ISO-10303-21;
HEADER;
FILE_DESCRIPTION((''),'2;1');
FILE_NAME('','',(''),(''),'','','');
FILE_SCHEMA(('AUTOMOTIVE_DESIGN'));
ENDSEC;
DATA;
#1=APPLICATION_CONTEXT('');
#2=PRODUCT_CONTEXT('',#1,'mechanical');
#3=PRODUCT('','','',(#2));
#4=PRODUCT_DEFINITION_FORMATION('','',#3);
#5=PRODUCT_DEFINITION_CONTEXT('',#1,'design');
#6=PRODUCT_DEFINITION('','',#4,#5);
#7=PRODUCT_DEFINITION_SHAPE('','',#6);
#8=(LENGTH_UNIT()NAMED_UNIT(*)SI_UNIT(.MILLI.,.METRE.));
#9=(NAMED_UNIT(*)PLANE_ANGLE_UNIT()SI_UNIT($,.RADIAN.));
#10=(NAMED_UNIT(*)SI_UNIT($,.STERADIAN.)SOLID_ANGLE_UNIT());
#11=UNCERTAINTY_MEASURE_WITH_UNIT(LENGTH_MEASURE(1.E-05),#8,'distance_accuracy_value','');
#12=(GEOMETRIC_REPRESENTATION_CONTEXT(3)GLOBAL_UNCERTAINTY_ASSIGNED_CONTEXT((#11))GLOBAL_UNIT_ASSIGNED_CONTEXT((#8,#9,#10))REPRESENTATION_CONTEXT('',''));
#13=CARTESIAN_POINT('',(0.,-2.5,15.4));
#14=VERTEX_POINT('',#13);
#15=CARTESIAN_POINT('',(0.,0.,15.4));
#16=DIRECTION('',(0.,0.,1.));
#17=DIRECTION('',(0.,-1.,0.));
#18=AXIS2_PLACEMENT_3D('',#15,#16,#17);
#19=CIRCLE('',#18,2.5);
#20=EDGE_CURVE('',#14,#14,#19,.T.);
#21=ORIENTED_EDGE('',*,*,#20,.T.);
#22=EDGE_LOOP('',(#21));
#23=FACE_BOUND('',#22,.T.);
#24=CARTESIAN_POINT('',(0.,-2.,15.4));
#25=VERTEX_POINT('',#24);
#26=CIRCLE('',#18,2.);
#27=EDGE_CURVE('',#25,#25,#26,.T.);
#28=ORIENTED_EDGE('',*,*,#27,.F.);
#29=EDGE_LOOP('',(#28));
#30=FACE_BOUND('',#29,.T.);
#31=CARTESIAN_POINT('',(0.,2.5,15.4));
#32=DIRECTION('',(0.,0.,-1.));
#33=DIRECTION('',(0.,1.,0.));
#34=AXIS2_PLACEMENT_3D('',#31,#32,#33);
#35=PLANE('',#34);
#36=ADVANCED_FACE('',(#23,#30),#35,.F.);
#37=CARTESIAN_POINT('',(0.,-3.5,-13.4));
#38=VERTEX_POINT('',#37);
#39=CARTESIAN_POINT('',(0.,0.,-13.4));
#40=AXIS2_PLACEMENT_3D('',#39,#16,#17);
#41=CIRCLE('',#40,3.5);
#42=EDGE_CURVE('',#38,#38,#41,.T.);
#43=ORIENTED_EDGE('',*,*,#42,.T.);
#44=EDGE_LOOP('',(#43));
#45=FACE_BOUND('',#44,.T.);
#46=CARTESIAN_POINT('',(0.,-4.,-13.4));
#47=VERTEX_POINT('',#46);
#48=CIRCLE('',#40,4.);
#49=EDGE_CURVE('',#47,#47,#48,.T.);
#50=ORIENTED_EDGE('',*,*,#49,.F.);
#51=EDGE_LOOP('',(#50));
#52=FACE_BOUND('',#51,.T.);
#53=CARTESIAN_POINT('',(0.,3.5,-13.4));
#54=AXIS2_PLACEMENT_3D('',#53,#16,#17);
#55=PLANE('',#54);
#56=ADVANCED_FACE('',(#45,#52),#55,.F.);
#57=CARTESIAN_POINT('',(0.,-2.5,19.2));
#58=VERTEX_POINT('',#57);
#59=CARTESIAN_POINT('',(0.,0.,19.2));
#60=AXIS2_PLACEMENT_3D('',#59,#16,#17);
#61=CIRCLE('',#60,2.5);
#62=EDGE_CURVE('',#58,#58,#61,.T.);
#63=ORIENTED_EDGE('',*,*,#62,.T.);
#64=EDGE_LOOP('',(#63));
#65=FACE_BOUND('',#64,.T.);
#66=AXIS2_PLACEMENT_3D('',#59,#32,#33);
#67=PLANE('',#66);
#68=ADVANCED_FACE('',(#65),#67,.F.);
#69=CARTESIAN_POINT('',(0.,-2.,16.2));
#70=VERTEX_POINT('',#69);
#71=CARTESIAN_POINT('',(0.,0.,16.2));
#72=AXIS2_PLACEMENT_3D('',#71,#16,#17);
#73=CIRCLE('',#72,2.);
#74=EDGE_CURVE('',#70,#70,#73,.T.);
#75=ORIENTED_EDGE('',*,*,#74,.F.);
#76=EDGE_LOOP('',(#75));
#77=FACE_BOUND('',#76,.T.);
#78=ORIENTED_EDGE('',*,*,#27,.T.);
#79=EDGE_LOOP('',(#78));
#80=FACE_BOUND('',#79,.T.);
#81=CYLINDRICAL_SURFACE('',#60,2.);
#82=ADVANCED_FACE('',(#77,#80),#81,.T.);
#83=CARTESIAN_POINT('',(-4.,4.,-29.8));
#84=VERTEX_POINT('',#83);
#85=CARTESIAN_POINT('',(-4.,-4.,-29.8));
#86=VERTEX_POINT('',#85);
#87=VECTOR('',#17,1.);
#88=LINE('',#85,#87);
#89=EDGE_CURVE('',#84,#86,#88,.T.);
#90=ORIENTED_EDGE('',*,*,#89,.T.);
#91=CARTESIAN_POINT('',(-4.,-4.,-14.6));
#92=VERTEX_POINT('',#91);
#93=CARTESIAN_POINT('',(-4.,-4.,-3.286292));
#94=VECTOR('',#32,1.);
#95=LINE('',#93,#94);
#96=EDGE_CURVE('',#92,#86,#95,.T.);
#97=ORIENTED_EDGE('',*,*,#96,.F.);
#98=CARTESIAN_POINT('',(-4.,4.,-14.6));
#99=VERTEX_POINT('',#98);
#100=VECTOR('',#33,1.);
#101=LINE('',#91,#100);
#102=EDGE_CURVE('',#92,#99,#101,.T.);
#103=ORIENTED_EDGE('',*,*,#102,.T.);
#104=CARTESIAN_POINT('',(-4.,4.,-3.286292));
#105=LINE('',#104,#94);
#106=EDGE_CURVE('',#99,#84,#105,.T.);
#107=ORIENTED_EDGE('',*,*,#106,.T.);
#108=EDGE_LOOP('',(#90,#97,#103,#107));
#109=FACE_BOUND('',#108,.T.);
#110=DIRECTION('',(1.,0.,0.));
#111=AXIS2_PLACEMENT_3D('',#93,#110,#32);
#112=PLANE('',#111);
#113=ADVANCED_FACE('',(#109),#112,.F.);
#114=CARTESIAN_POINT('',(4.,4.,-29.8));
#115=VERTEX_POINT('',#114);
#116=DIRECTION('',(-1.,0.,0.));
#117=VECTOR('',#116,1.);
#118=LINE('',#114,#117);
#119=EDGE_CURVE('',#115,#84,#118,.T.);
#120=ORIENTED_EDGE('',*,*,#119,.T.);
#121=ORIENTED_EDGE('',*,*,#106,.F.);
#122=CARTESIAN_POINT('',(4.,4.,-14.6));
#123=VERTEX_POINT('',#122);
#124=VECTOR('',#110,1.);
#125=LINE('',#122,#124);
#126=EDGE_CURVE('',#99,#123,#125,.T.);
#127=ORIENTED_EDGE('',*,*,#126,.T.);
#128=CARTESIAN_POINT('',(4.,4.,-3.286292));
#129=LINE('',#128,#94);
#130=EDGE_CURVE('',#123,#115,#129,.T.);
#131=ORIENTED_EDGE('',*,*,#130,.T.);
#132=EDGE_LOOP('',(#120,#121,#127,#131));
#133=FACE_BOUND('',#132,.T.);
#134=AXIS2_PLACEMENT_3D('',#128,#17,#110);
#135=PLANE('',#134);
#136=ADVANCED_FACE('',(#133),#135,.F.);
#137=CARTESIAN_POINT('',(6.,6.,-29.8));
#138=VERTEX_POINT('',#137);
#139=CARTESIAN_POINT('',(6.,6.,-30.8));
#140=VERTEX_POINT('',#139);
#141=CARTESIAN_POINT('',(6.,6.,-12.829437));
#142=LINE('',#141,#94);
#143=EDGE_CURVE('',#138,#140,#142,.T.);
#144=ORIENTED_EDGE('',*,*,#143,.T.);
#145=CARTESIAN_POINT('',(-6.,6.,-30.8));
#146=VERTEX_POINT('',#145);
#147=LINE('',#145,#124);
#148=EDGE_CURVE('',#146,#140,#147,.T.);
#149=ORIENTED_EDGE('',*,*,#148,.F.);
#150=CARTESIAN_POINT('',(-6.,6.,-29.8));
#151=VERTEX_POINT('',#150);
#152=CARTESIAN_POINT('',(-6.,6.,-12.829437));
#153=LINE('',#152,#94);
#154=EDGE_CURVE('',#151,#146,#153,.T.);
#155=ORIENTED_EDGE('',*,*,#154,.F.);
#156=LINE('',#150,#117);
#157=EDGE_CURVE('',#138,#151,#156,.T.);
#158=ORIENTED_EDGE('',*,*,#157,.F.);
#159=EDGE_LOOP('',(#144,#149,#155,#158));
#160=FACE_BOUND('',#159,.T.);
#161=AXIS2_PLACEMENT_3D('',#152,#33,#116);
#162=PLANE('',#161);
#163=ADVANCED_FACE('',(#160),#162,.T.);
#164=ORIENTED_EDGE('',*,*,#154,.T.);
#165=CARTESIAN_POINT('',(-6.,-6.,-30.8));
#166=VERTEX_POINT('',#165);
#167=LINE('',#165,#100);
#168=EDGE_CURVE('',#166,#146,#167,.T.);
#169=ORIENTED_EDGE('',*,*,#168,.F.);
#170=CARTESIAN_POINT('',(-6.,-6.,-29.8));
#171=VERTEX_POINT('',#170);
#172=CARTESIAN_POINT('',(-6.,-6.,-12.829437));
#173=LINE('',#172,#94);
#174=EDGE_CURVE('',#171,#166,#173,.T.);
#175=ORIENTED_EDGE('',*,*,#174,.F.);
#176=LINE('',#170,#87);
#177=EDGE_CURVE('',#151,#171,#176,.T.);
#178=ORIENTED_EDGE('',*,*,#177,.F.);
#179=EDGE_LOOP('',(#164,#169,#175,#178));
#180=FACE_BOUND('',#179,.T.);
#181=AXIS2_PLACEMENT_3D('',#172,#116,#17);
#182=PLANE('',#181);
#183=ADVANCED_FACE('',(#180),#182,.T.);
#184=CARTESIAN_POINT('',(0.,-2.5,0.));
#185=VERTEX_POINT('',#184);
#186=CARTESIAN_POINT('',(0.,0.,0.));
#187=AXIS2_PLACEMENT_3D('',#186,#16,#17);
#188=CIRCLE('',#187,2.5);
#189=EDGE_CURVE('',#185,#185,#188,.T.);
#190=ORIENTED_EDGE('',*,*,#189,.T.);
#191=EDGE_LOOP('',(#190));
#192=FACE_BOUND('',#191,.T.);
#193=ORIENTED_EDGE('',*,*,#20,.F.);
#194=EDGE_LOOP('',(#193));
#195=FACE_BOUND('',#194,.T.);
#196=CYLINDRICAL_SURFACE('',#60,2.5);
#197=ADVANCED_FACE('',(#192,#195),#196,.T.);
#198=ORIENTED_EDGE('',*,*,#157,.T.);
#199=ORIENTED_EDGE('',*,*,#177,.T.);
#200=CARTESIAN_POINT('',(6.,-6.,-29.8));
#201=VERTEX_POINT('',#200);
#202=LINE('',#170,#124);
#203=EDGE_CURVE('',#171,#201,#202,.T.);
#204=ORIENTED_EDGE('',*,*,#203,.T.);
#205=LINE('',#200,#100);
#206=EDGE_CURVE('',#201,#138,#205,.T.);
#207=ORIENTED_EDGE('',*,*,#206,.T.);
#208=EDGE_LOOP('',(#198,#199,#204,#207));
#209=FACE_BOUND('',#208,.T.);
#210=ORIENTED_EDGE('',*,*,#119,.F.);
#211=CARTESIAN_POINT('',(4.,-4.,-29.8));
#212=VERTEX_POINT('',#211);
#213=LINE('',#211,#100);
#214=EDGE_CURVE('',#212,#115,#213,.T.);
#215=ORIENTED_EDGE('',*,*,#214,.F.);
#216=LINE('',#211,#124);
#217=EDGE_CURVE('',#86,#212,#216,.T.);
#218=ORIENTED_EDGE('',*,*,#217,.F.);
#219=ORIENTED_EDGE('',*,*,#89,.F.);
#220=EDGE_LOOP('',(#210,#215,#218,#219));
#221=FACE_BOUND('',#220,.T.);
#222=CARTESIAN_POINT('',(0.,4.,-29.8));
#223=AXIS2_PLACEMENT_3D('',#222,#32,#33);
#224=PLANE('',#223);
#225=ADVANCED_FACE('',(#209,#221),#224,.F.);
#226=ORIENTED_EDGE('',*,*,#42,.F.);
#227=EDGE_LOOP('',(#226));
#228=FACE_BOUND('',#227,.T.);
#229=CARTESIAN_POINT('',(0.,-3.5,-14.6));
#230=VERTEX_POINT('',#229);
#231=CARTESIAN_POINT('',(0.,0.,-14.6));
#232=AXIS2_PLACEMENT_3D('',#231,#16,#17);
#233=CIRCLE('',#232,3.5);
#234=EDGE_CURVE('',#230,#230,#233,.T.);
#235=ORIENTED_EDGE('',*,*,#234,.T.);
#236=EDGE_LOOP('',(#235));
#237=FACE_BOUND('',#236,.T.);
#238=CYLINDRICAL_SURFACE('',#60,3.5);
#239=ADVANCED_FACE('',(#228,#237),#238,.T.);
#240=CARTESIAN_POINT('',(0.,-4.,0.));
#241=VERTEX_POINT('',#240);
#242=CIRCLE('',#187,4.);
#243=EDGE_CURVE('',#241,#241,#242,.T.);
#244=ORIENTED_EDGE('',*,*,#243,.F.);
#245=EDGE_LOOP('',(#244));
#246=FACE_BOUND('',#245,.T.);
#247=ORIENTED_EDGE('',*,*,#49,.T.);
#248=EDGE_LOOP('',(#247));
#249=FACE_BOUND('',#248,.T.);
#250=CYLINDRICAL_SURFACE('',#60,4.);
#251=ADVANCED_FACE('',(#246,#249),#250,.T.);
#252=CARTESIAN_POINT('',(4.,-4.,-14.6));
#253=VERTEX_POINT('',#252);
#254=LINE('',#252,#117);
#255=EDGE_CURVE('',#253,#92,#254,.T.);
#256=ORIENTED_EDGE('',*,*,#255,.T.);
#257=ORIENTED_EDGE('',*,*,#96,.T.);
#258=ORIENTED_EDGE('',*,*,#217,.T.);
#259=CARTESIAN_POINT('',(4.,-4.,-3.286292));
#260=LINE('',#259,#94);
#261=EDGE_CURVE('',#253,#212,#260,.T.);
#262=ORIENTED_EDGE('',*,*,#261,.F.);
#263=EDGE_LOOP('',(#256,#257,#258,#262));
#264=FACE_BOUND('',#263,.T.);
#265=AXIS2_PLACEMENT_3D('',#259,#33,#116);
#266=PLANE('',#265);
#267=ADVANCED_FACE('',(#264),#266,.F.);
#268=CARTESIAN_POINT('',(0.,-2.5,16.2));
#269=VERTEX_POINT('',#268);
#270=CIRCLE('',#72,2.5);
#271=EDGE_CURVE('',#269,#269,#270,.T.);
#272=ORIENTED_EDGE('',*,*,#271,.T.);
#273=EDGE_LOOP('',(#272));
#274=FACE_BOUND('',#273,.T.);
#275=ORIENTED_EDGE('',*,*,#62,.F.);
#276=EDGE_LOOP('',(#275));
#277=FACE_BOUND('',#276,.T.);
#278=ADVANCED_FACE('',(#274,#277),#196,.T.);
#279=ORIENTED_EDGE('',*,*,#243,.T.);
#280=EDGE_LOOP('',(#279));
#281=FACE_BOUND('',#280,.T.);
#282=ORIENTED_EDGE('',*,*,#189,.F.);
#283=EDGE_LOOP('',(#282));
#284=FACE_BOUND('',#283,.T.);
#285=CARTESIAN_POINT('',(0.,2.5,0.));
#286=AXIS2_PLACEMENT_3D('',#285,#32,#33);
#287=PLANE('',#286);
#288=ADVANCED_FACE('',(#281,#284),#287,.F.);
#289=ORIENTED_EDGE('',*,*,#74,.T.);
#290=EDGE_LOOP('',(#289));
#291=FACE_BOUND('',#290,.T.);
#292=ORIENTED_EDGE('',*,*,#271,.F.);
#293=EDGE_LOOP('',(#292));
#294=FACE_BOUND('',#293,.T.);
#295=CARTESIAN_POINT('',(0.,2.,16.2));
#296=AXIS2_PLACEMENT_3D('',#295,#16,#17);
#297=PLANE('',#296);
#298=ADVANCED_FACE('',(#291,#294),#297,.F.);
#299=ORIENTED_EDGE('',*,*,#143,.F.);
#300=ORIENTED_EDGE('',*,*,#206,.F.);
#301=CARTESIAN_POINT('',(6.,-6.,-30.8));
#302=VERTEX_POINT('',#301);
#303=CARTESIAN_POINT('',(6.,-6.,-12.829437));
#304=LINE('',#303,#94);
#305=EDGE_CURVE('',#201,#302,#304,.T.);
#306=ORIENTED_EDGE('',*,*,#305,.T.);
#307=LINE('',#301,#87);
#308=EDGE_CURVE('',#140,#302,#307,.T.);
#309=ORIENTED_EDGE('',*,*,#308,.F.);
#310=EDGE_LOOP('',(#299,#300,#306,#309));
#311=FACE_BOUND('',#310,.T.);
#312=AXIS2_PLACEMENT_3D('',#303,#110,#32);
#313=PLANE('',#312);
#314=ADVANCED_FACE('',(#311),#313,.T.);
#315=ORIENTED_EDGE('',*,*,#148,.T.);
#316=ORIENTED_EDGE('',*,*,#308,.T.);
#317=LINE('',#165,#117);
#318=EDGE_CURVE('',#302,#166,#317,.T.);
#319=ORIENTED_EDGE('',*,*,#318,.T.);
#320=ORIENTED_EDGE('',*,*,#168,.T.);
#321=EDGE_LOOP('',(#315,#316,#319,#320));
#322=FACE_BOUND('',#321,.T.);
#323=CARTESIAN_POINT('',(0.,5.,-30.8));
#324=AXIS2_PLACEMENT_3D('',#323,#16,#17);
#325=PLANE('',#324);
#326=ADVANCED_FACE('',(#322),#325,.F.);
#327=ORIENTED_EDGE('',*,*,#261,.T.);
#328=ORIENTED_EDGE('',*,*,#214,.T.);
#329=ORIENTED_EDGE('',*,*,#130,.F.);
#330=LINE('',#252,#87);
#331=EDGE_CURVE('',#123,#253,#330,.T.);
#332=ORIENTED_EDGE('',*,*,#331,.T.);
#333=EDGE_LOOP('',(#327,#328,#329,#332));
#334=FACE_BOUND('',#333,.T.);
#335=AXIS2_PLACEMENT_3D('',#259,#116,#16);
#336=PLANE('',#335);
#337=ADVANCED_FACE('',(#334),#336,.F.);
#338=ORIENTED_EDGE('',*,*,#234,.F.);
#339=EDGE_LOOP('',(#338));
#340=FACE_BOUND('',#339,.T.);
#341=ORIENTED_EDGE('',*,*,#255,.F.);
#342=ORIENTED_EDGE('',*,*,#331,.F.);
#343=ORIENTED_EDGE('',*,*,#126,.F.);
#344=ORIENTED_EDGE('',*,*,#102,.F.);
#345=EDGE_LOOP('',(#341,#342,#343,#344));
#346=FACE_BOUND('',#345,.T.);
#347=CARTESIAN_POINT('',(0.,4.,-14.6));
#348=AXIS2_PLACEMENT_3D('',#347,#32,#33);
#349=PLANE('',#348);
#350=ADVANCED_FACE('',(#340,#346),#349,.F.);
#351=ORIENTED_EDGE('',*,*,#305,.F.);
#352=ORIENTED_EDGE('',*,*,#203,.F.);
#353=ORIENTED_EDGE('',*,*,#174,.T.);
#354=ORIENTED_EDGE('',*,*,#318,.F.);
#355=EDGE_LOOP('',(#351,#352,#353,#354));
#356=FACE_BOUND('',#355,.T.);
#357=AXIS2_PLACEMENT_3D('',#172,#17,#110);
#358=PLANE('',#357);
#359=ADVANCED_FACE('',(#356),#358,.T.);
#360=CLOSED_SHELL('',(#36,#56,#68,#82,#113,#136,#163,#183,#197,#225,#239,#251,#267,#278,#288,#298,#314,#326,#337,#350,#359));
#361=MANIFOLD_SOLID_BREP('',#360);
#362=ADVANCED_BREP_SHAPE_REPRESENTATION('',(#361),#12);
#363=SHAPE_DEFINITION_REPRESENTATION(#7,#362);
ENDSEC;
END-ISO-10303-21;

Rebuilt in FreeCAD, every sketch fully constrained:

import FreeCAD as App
import Part
import Sketcher
Q = App.Units.Quantity


def add_polygon(sketch, points):
    """Adds a closed chain of lines whose ends are joined by coincident constraints."""
    first, n = sketch.GeometryCount, len(points)
    for a, b in zip(points, points[1:] + points[:1]):
        sketch.addGeometry(Part.LineSegment(App.Vector(*a, 0), App.Vector(*b, 0)), False)
    for i in range(n):
        sketch.addConstraint(Sketcher.Constraint("Coincident", first + i, 2, first + (i + 1) % n, 1))

doc = App.newDocument("Part")
body = doc.addObject("PartDesign::Body", "Body")

# Sketch on YZ plane
sketch1 = body.newObject("Sketcher::SketchObject", "Sketch")
sketch1.AttachmentSupport = (doc.getObject("YZ_Plane"), [""])
sketch1.MapMode = "FlatFace"
add_polygon(sketch1, [(0, 19.2), (0, -30.8), (5, -30.8), (5, -29.8), (4, -29.8), (4, -14.6), (3.5, -14.6), (3.5, -13.4), (4, -13.4), (4, 0), (2.5, 0), (2.5, 15.4), (2, 15.4), (2, 16.2), (2.5, 16.2), (2.5, 19.2)])  # lines 0-15
sketch1.addConstraint([
    Sketcher.Constraint("Vertical", 0),
    Sketcher.Constraint("Horizontal", 1),
    Sketcher.Constraint("Vertical", 2),
    Sketcher.Constraint("Horizontal", 3),
    Sketcher.Constraint("Vertical", 4),
    Sketcher.Constraint("Horizontal", 5),
    Sketcher.Constraint("Vertical", 6),
    Sketcher.Constraint("Horizontal", 7),
    Sketcher.Constraint("Vertical", 8),
    Sketcher.Constraint("Horizontal", 9),
    Sketcher.Constraint("Vertical", 10),
    Sketcher.Constraint("Horizontal", 11),
    Sketcher.Constraint("Vertical", 12),
    Sketcher.Constraint("Horizontal", 13),
    Sketcher.Constraint("Vertical", 14),
    Sketcher.Constraint("Horizontal", 15),
    Sketcher.Constraint("PointOnObject", 0, 2, -2),
    Sketcher.Constraint("PointOnObject", 8, 2, -1),
    Sketcher.Constraint("Vertical", 4, 2, 7, 2),
    Sketcher.Constraint("Vertical", 10, 2, 13, 2),
    Sketcher.Constraint("Equal", 7, 11),
    Sketcher.Constraint("Equal", 3, 2),
    Sketcher.Constraint("DistanceX", 1, 1, 1, 2, Q("5 mm")),
    Sketcher.Constraint("DistanceX", 3, 2, 3, 1, Q("1 mm")),
    Sketcher.Constraint("DistanceY", 0, 2, 0, 1, Q("50 mm")),
    Sketcher.Constraint("DistanceY", 14, 1, 14, 2, Q("3 mm")),
    Sketcher.Constraint("DistanceX", 5, 2, 5, 1, Q("0.5 mm")),
    Sketcher.Constraint("DistanceX", 9, 2, 9, 1, Q("1.5 mm")),
    Sketcher.Constraint("DistanceY", 4, 1, 4, 2, Q("15.2 mm")),
    Sketcher.Constraint("DistanceY", 6, 1, 6, 2, Q("1.2 mm")),
    Sketcher.Constraint("DistanceY", 8, 1, 8, 2, Q("13.4 mm")),
    Sketcher.Constraint("DistanceY", 10, 1, 10, 2, Q("15.4 mm")),
])
revolution = body.newObject("PartDesign::Revolution", "Revolution")
revolution.Profile = sketch1
revolution.ReferenceAxis = (sketch1, ["V_Axis"])
revolution.Angle = 360

# Sketch on XY plane
sketch2 = body.newObject("Sketcher::SketchObject", "Sketch001")
sketch2.AttachmentSupport = (doc.getObject("XY_Plane"), [""])
sketch2.MapMode = "FlatFace"
sketch2.AttachmentOffset = App.Placement(App.Vector(0, 0, -29.8), App.Rotation())
add_polygon(sketch2, [(-4, 4), (-4, -4), (4, -4), (4, 4)])  # lines 0-3
sketch2.addConstraint([
    Sketcher.Constraint("Vertical", 0),
    Sketcher.Constraint("Horizontal", 1),
    Sketcher.Constraint("Vertical", 2),
    Sketcher.Constraint("Horizontal", 3),
    Sketcher.Constraint("Symmetric", 0, 2, 2, 2, -1, 1),
    Sketcher.Constraint("Equal", 3, 0),
    Sketcher.Constraint("DistanceX", 1, 1, 1, 2, Q("8 mm")),
])
pad1 = body.newObject("PartDesign::Pad", "Pad")
pad1.Profile = sketch2
pad1.Length = 15.2

# Sketch on XY plane
sketch3 = body.newObject("Sketcher::SketchObject", "Sketch002")
sketch3.AttachmentSupport = (doc.getObject("XY_Plane"), [""])
sketch3.MapMode = "FlatFace"
sketch3.AttachmentOffset = App.Placement(App.Vector(0, 0, -30.8), App.Rotation())
add_polygon(sketch3, [(6, 6), (6, -6), (-6, -6), (-6, 6)])  # lines 0-3
sketch3.addConstraint([
    Sketcher.Constraint("Vertical", 0),
    Sketcher.Constraint("Horizontal", 1),
    Sketcher.Constraint("Vertical", 2),
    Sketcher.Constraint("Horizontal", 3),
    Sketcher.Constraint("Symmetric", 0, 2, 2, 2, -1, 1),
    Sketcher.Constraint("Equal", 3, 0),
    Sketcher.Constraint("DistanceX", 1, 2, 1, 1, Q("12 mm")),
])
pad2 = body.newObject("PartDesign::Pad", "Pad001")
pad2.Profile = sketch3
pad2.Length = 1

doc.recompute()
